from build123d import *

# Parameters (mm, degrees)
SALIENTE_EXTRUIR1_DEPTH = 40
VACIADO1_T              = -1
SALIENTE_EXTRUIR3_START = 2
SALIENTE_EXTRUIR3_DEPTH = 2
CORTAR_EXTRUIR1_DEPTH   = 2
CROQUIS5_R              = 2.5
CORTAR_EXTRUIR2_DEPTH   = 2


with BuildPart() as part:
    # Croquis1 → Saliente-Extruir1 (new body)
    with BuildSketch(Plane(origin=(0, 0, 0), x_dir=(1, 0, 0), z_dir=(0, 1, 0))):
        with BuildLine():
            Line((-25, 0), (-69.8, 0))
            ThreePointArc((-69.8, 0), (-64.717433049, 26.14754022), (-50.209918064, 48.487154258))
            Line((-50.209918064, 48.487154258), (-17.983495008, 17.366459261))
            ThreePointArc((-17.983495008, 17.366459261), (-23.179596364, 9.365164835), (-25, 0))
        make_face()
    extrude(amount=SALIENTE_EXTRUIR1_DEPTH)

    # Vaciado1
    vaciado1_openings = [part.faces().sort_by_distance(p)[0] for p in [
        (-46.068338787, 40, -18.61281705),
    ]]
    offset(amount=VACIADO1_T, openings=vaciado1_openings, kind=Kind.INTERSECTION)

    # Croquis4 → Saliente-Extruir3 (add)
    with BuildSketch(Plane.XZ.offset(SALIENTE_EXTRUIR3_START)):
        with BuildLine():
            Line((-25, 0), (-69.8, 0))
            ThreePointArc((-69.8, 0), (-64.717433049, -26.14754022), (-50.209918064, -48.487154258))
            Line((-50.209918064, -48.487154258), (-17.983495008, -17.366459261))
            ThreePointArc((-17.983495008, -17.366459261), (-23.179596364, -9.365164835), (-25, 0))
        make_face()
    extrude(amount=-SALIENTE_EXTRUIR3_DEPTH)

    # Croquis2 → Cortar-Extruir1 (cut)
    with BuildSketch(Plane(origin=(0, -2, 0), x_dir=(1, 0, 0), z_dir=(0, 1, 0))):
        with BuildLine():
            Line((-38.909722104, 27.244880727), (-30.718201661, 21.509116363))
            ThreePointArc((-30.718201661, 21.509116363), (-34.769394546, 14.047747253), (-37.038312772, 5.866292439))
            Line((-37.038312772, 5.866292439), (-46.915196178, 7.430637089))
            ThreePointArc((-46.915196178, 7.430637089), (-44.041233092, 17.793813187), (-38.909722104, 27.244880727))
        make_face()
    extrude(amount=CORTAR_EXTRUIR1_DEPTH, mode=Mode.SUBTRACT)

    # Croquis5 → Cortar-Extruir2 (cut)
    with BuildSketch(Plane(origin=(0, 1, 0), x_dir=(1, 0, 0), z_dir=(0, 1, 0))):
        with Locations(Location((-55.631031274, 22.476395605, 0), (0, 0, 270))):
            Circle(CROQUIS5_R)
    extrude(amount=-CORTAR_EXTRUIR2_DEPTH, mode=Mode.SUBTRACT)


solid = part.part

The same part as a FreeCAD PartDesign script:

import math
import FreeCAD as App
import Part
import Sketcher

V = App.Vector
Q = App.Units.Quantity


def faces_at(feature, points):
    """Names of the faces that lie closest to the given points."""
    faces = feature.Shape.Faces
    near = lambda p: min(range(len(faces)), key=lambda i: faces[i].distToShape(Part.Vertex(*p))[0])
    return sorted({f"Face{near(p) + 1}" for p in points})

doc = App.newDocument("Part")
body = doc.addObject("PartDesign::Body", "Body")

# Sketch on XZ plane
sketch1 = doc.addObject("Sketcher::SketchObject", "Sketch")
body.addObject(sketch1)
sketch1.AttachmentSupport = (doc.XZ_Plane, [""])
sketch1.MapMode = "FlatFace"
sketch1.addGeometry(Part.LineSegment(V(-70, 0, 0), V(-25, 0, 0)), False)
sketch1.addGeometry(Part.ArcOfCircle(Part.Circle(V(0, 0, 0), V(0, 0, 1), 25), math.radians(-180), math.radians(-136)), False)
sketch1.addGeometry(Part.LineSegment(V(-18, -17, 0), V(-50, -48, 0)), False)
sketch1.addGeometry(Part.ArcOfCircle(Part.Circle(V(0, 0, 0), V(0, 0, 1), 70), math.radians(180), math.radians(224)), False)
sketch1.addConstraint(Sketcher.Constraint("Coincident", 0, 2, 1, 1))
sketch1.addConstraint(Sketcher.Constraint("Coincident", 1, 2, 2, 1))
sketch1.addConstraint(Sketcher.Constraint("Coincident", 2, 2, 3, 2))
sketch1.addConstraint(Sketcher.Constraint("Coincident", 3, 1, 0, 1))
sketch1.addConstraint(Sketcher.Constraint("Horizontal", 0))
sketch1.addConstraint(Sketcher.Constraint("Coincident", 1, 3, -1, 1))
sketch1.addConstraint(Sketcher.Constraint("Coincident", 3, 3, -1, 1))
sketch1.addConstraint(Sketcher.Constraint("PointOnObject", 0, 2, -1))
sketch1.addConstraint(Sketcher.Constraint("Radius", 1, Q("25 mm")))
sketch1.addConstraint(Sketcher.Constraint("Radius", 3, Q("69.8 mm")))
sketch1.addConstraint(Sketcher.Constraint("Angle", 2, Q("-136 deg")))
sketch1.addConstraint(Sketcher.Constraint("DistanceY", 1, 2, -1, 1, Q("17.366459 mm")))
pad1 = doc.addObject("PartDesign::Pad", "Pad")
body.addObject(pad1)
pad1.Profile = sketch1
pad1.Length = 40
pad1.Reversed = True
doc.recompute()

thickness = doc.addObject("PartDesign::Thickness", "Thickness")
body.addObject(thickness)
thickness.Base = (pad1, faces_at(pad1, [(-43.892, 40, -24.244)]))
thickness.Value = 1
thickness.Reversed = True
thickness.Join = "Intersection"

# Sketch on XZ plane
sketch2 = doc.addObject("Sketcher::SketchObject", "Sketch001")
body.addObject(sketch2)
sketch2.AttachmentSupport = (doc.XZ_Plane, [""])
sketch2.MapMode = "FlatFace"
sketch2.AttachmentOffset = App.Placement(V(0, 0, 2), App.Rotation())
sketch2.addGeometry(Part.LineSegment(V(-25, 0, 0), V(-70, 0, 0)), False)
sketch2.addGeometry(Part.ArcOfCircle(Part.Circle(V(0, 0, 0), V(0, 0, 1), 70), math.radians(180), math.radians(224)), False)
sketch2.addGeometry(Part.LineSegment(V(-50, -48, 0), V(-18, -17, 0)), False)
sketch2.addGeometry(Part.ArcOfCircle(Part.Circle(V(0, 0, 0), V(0, 0, 1), 25), math.radians(-180), math.radians(-136)), False)
sketch2.addConstraint(Sketcher.Constraint("Coincident", 0, 2, 1, 1))
sketch2.addConstraint(Sketcher.Constraint("Coincident", 1, 2, 2, 1))
sketch2.addConstraint(Sketcher.Constraint("Coincident", 2, 2, 3, 2))
sketch2.addConstraint(Sketcher.Constraint("Coincident", 3, 1, 0, 1))
sketch2.addConstraint(Sketcher.Constraint("Horizontal", 0))
sketch2.addConstraint(Sketcher.Constraint("Coincident", 1, 3, -1, 1))
sketch2.addConstraint(Sketcher.Constraint("Coincident", 3, 3, -1, 1))
sketch2.addConstraint(Sketcher.Constraint("PointOnObject", 0, 2, -1))
sketch2.addConstraint(Sketcher.Constraint("Radius", 3, Q("25 mm")))
sketch2.addConstraint(Sketcher.Constraint("Radius", 1, Q("69.8 mm")))
sketch2.addConstraint(Sketcher.Constraint("Angle", 2, Q("44 deg")))
sketch2.addConstraint(Sketcher.Constraint("DistanceX", 1, 2, -1, 1, Q("50.209918 mm")))
pad2 = doc.addObject("PartDesign::Pad", "Pad001")
body.addObject(pad2)
pad2.Profile = sketch2
pad2.Length = 2
pad2.Reversed = True

# Sketch on XZ plane
sketch3 = doc.addObject("Sketcher::SketchObject", "Sketch002")
body.addObject(sketch3)
sketch3.AttachmentSupport = (doc.XZ_Plane, [""])
sketch3.MapMode = "FlatFace"
sketch3.AttachmentOffset = App.Placement(V(0, 0, 2), App.Rotation())
sketch3.addGeometry(Part.LineSegment(V(-31, -22, 0), V(-39, -27, 0)), False)
sketch3.addGeometry(Part.ArcOfCircle(Part.Circle(V(0, 0, 0), V(0, 0, 1), 48), math.radians(-171), math.radians(-145)), False)
sketch3.addGeometry(Part.LineSegment(V(-47, -7, 0), V(-37, -6, 0)), False)
sketch3.addGeometry(Part.ArcOfCircle(Part.Circle(V(0, 0, 0), V(0, 0, 1), 38), math.radians(-171), math.radians(-145)), False)
sketch3.addConstraint(Sketcher.Constraint("Coincident", 0, 2, 1, 2))
sketch3.addConstraint(Sketcher.Constraint("Coincident", 1, 1, 2, 1))
sketch3.addConstraint(Sketcher.Constraint("Coincident", 2, 2, 3, 1))
sketch3.addConstraint(Sketcher.Constraint("Coincident", 3, 2, 0, 1))
sketch3.addConstraint(Sketcher.Constraint("Coincident", 1, 3, -1, 1))
sketch3.addConstraint(Sketcher.Constraint("Coincident", 3, 3, -1, 1))
sketch3.addConstraint(Sketcher.Constraint("Radius", 1, Q("47.5 mm")))
sketch3.addConstraint(Sketcher.Constraint("Radius", 3, Q("37.5 mm")))
sketch3.addConstraint(Sketcher.Constraint("Angle", 0, Q("-145 deg")))
sketch3.addConstraint(Sketcher.Constraint("Angle", 2, Q("9 deg")))
sketch3.addConstraint(Sketcher.Constraint("DistanceX", 3, 2, -1, 1, Q("30.718202 mm")))
sketch3.addConstraint(Sketcher.Constraint("DistanceX", 0, 2, 2, 2, Q("1.871409 mm")))
pocket1 = doc.addObject("PartDesign::Pocket", "Pocket")
body.addObject(pocket1)
pocket1.Profile = sketch3
pocket1.Length = 2

# Sketch on XZ plane
sketch4 = doc.addObject("Sketcher::SketchObject", "Sketch003")
body.addObject(sketch4)
sketch4.AttachmentSupport = (doc.XZ_Plane, [""])
sketch4.MapMode = "FlatFace"
sketch4.AttachmentOffset = App.Placement(V(0, 0, -1), App.Rotation())
sketch4.addGeometry(Part.Circle(V(-55.6, -22.5, 0), V(0, 0, 1), 2.5), False)
sketch4.addConstraint(Sketcher.Constraint("Diameter", 0, Q("5 mm")))
sketch4.addConstraint(Sketcher.Constraint("DistanceX", 0, 3, -1, 1, Q("55.631031 mm")))
sketch4.addConstraint(Sketcher.Constraint("DistanceY", 0, 3, -1, 1, Q("22.476396 mm")))
pocket2 = doc.addObject("PartDesign::Pocket", "Pocket001")
body.addObject(pocket2)
pocket2.Profile = sketch4
pocket2.Length = 2
pocket2.Reversed = True

doc.recompute()
